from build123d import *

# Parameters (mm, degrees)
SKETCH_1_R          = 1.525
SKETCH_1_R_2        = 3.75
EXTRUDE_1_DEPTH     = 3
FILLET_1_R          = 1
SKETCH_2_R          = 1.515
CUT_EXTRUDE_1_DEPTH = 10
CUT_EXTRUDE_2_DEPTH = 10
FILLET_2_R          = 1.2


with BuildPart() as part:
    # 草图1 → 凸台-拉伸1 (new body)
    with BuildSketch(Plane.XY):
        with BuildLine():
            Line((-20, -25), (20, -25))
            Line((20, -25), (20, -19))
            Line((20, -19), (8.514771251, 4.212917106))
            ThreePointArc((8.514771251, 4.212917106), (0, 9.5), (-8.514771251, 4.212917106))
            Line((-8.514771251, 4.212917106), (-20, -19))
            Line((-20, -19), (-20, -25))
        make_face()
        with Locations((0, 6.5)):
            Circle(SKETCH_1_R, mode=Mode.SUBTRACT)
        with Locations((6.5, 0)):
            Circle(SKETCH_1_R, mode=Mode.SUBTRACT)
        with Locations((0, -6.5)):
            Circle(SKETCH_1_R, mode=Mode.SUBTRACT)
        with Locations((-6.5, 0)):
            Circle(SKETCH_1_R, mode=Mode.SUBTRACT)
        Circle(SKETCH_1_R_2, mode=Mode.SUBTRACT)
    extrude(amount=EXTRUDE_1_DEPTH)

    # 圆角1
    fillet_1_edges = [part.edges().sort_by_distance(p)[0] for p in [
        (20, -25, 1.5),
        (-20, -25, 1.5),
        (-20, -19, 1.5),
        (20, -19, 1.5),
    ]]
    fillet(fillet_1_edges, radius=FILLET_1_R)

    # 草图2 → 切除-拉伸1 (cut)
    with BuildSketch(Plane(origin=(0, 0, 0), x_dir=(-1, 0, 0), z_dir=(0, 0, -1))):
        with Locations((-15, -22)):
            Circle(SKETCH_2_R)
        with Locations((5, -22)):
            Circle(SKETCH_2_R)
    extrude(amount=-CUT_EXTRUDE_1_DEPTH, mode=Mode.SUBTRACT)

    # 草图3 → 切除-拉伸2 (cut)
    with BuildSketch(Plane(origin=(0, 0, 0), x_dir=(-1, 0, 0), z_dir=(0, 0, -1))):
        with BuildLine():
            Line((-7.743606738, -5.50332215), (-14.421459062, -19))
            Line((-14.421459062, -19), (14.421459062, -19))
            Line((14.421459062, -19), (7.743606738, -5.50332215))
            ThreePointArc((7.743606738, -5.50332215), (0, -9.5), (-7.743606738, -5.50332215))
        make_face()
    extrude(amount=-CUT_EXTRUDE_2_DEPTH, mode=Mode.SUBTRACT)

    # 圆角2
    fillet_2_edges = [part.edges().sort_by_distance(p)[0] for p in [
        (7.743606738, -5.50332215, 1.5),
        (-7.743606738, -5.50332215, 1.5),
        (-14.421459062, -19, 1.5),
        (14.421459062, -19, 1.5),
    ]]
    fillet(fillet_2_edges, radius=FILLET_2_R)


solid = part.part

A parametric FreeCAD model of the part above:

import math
import FreeCAD as App
import Part
import Sketcher

V = App.Vector
Q = App.Units.Quantity


def edges_at(feature, points):
    """Names of the edges that pass closest to the given points."""
    edges = feature.Shape.Edges
    near = lambda p: min(range(len(edges)), key=lambda i: edges[i].distToShape(Part.Vertex(*p))[0])
    return sorted({f"Edge{near(p) + 1}" for p in points})

doc = App.newDocument("Part")
params = doc.addObject("Spreadsheet::Sheet", "Params")
for row, (alias, value) in enumerate([
    ("sketch1_diameter", "7.5 mm"),
    ("sketch1_radius", "9.5 mm"),
    ("sketch1_diameter2", "3.05 mm"),
    ("sketch1_width", "40 mm"),
    ("sketch1_height", "6 mm"),
    ("pad1_length", "3 mm"),
    ("fillet_radius", "1 mm"),
    ("sketch2_diameter", "3.03 mm"),
    ("pocket1_length", "10 mm"),
    ("sketch3_radius", "9.5 mm"),
    ("pocket2_length", "10 mm"),
    ("fillet2_radius", "1.2 mm"),
], start=1):
    params.set(f"A{row}", alias)
    params.set(f"B{row}", "=" + value)
    params.setAlias(f"B{row}", alias)

body = doc.addObject("PartDesign::Body", "Body")

# Sketch on XY plane
sketch1 = doc.addObject("Sketcher::SketchObject", "Sketch")
body.addObject(sketch1)
sketch1.AttachmentSupport = (doc.XY_Plane, [""])
sketch1.MapMode = "FlatFace"
sketch1.addGeometry(Part.LineSegment(V(-20, -25, 0), V(20, -25, 0)), False)
sketch1.addGeometry(Part.LineSegment(V(20, -25, 0), V(20, -19, 0)), False)
sketch1.addGeometry(Part.LineSegment(V(20, -19, 0), V(8.5, 4.2, 0)), False)
sketch1.addGeometry(Part.ArcOfCircle(Part.Circle(V(0, 0, 0), V(0, 0, 1), 9.5), math.radians(26), math.radians(154)), False)
sketch1.addGeometry(Part.LineSegment(V(-8.5, 4.2, 0), V(-20, -19, 0)), False)
sketch1.addGeometry(Part.LineSegment(V(-20, -19, 0), V(-20, -25, 0)), False)
sketch1.addGeometry(Part.Circle(V(0, -6.5, 0), V(0, 0, 1), 1.5), False)
sketch1.addGeometry(Part.Circle(V(-6.5, 0, 0), V(0, 0, 1), 1.5), False)
sketch1.addGeometry(Part.Circle(V(0, 0, 0), V(0, 0, 1), 3.8), False)
sketch1.addGeometry(Part.Circle(V(0, 6.5, 0), V(0, 0, 1), 1.5), False)
sketch1.addGeometry(Part.Circle(V(6.5, 0, 0), V(0, 0, 1), 1.5), False)
sketch1.addConstraint(Sketcher.Constraint("Coincident", 0, 2, 1, 1))
sketch1.addConstraint(Sketcher.Constraint("Coincident", 1, 2, 2, 1))
sketch1.addConstraint(Sketcher.Constraint("Tangent", 2, 2, 3, 1))
sketch1.addConstraint(Sketcher.Constraint("Tangent", 3, 2, 4, 1))
sketch1.addConstraint(Sketcher.Constraint("Coincident", 4, 2, 5, 1))
sketch1.addConstraint(Sketcher.Constraint("Coincident", 5, 2, 0, 1))
sketch1.addConstraint(Sketcher.Constraint("Horizontal", 0))
sketch1.addConstraint(Sketcher.Constraint("Vertical", 1))
sketch1.addConstraint(Sketcher.Constraint("Vertical", 5))
sketch1.addConstraint(Sketcher.Constraint("Coincident", 3, 3, -1, 1))
sketch1.addConstraint(Sketcher.Constraint("Coincident", 8, 3, -1, 1))
sketch1.addConstraint(Sketcher.Constraint("Equal", 6, 7))
sketch1.addConstraint(Sketcher.Constraint("Equal", 7, 9))
sketch1.addConstraint(Sketcher.Constraint("Equal", 9, 10))
sketch1.addConstraint(Sketcher.Constraint("Symmetric", 6, 3, 9, 3, -1, 1))
sketch1.addConstraint(Sketcher.Constraint("Symmetric", 7, 3, 10, 3, -1, 1))
sketch1.addConstraint(Sketcher.Constraint("Symmetric", 1, 2, 4, 2, -2))
sketch1.addConstraint(Sketcher.Constraint("PointOnObject", 6, 3, -2))
sketch1.addConstraint(Sketcher.Constraint("PointOnObject", 7, 3, -1))
sketch1.addConstraint(Sketcher.Constraint("Diameter", 8, Q("7.5 mm")))
sketch1.addConstraint(Sketcher.Constraint("Radius", 3, Q("9.5 mm")))
sketch1.addConstraint(Sketcher.Constraint("Diameter", 6, Q("3.05 mm")))
sketch1.addConstraint(Sketcher.Constraint("DistanceX", 0, 1, 0, 2, Q("40 mm")))
sketch1.addConstraint(Sketcher.Constraint("DistanceY", 1, 1, 1, 2, Q("6 mm")))
sketch1.addConstraint(Sketcher.Constraint("DistanceY", 0, 2, -1, 1, Q("25 mm")))
sketch1.addConstraint(Sketcher.Constraint("DistanceY", 6, 3, 9, 3, Q("13 mm")))
sketch1.addConstraint(Sketcher.Constraint("DistanceX", 7, 3, 10, 3, Q("13 mm")))
sketch1.setExpression("Constraints[19]", "Params.sketch1_diameter")
sketch1.setExpression("Constraints[20]", "Params.sketch1_radius")
sketch1.setExpression("Constraints[21]", "Params.sketch1_diameter2")
sketch1.setExpression("Constraints[22]", "Params.sketch1_width")
sketch1.setExpression("Constraints[23]", "Params.sketch1_height")
pad1 = doc.addObject("PartDesign::Pad", "Pad")
body.addObject(pad1)
pad1.Profile = sketch1
pad1.setExpression("Length", "Params.pad1_length")
doc.recompute()

fillet = doc.addObject("PartDesign::Fillet", "Fillet")
body.addObject(fillet)
fillet.Base = (pad1, edges_at(pad1, [
    (20, -25, 1.5),
    (-20, -25, 1.5),
    (-20, -19, 1.5),
    (20, -19, 1.5),
]))
fillet.setExpression("Radius", "Params.fillet_radius")

# Sketch on XY plane
sketch2 = doc.addObject("Sketcher::SketchObject", "Sketch001")
body.addObject(sketch2)
sketch2.AttachmentSupport = (doc.XY_Plane, [""])
sketch2.MapMode = "FlatFace"
sketch2.addGeometry(Part.Circle(V(15, -22, 0), V(0, 0, 1), 1.5), False)
sketch2.addGeometry(Part.Circle(V(-5, -22, 0), V(0, 0, 1), 1.5), False)
sketch2.addConstraint(Sketcher.Constraint("Equal", 0, 1))
sketch2.addConstraint(Sketcher.Constraint("Horizontal", 0, 3, 1, 3))
sketch2.addConstraint(Sketcher.Constraint("Diameter", 0, Q("3.03 mm")))
sketch2.addConstraint(Sketcher.Constraint("DistanceX", -1, 1, 0, 3, Q("15 mm")))
sketch2.addConstraint(Sketcher.Constraint("DistanceY", 0, 3, -1, 1, Q("22 mm")))
sketch2.addConstraint(Sketcher.Constraint("DistanceX", 1, 3, -1, 1, Q("5 mm")))
sketch2.setExpression("Constraints[2]", "Params.sketch2_diameter")
pocket1 = doc.addObject("PartDesign::Pocket", "Pocket")
body.addObject(pocket1)
pocket1.Profile = sketch2
pocket1.setExpression("Length", "Params.pocket1_length")
pocket1.Reversed = True

# Sketch on XY plane
sketch3 = doc.addObject("Sketcher::SketchObject", "Sketch002")
body.addObject(sketch3)
sketch3.AttachmentSupport = (doc.XY_Plane, [""])
sketch3.MapMode = "FlatFace"
sketch3.addGeometry(Part.LineSegment(V(8, -6, 0), V(14, -19, 0)), False)
sketch3.addGeometry(Part.LineSegment(V(14, -19, 0), V(-14, -19, 0)), False)
sketch3.addGeometry(Part.LineSegment(V(-14, -19, 0), V(-8, -6, 0)), False)
sketch3.addGeometry(Part.ArcOfCircle(Part.Circle(V(0, 0, 0), V(0, 0, 1), 10), math.radians(-145), math.radians(-35)), False)
sketch3.addConstraint(Sketcher.Constraint("Coincident", 0, 2, 1, 1))
sketch3.addConstraint(Sketcher.Constraint("Coincident", 1, 2, 2, 1))
sketch3.addConstraint(Sketcher.Constraint("Coincident", 2, 2, 3, 1))
sketch3.addConstraint(Sketcher.Constraint("Coincident", 3, 2, 0, 1))
sketch3.addConstraint(Sketcher.Constraint("Horizontal", 1))
sketch3.addConstraint(Sketcher.Constraint("Coincident", 3, 3, -1, 1))
sketch3.addConstraint(Sketcher.Constraint("Horizontal", 2, 2, 3, 2))
sketch3.addConstraint(Sketcher.Constraint("Equal", 0, 2))
sketch3.addConstraint(Sketcher.Constraint("Radius", 3, Q("9.5 mm")))
sketch3.addConstraint(Sketcher.Constraint("DistanceY", 0, 2, -1, 1, Q("19 mm")))
sketch3.addConstraint(Sketcher.Constraint("DistanceX", 1, 2, 1, 1, Q("28.842918 mm")))
sketch3.addConstraint(Sketcher.Constraint("Distance", 0, Q("15.058354 mm")))
sketch3.setExpression("Constraints[8]", "Params.sketch3_radius")
pocket2 = doc.addObject("PartDesign::Pocket", "Pocket001")
body.addObject(pocket2)
pocket2.Profile = sketch3
pocket2.setExpression("Length", "Params.pocket2_length")
pocket2.Reversed = True
doc.recompute()

fillet2 = doc.addObject("PartDesign::Fillet", "Fillet001")
body.addObject(fillet2)
fillet2.Base = (pocket2, edges_at(pocket2, [
    (7.744, -5.503, 1.5),
    (-7.744, -5.503, 1.5),
    (-14.421, -19, 1.5),
    (14.421, -19, 1.5),
]))
fillet2.setExpression("Radius", "Params.fillet2_radius")

doc.recompute()
